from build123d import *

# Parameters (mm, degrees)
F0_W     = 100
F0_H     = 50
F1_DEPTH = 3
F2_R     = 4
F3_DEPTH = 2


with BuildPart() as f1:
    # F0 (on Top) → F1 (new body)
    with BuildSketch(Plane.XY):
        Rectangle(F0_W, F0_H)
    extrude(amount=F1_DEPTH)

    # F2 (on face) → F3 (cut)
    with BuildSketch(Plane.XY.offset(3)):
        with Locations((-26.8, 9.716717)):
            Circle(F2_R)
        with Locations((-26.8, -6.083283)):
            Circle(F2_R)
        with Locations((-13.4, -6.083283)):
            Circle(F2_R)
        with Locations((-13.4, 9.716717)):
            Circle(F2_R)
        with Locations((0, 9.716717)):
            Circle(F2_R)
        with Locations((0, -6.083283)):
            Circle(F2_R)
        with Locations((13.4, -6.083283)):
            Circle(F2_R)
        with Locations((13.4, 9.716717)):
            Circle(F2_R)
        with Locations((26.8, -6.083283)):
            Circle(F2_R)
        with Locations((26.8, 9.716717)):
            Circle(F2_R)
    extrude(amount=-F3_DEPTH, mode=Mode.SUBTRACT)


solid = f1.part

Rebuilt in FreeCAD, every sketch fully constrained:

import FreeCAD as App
import Part
import Sketcher

V = App.Vector

doc = App.newDocument("Part")
body = doc.addObject("PartDesign::Body", "Body")

sketch1 = body.newObject("Sketcher::SketchObject", "Sketch")
sketch1.AttachmentSupport = (doc.getObject("XY_Plane"), [""])
sketch1.MapMode = "FlatFace"
sketch1.addGeometry(Part.LineSegment(V(-50, 25, 0), V(-50, -25, 0)), False)
sketch1.addGeometry(Part.LineSegment(V(-50, -25, 0), V(50, -25, 0)), False)
sketch1.addGeometry(Part.LineSegment(V(50, -25, 0), V(50, 25, 0)), False)
sketch1.addGeometry(Part.LineSegment(V(50, 25, 0), V(-50, 25, 0)), False)
sketch1.addConstraint(Sketcher.Constraint("Coincident", 0, 2, 1, 1))
sketch1.addConstraint(Sketcher.Constraint("Coincident", 1, 2, 2, 1))
sketch1.addConstraint(Sketcher.Constraint("Coincident", 2, 2, 3, 1))
sketch1.addConstraint(Sketcher.Constraint("Coincident", 3, 2, 0, 1))
sketch1.addConstraint(Sketcher.Constraint("Vertical", 0))
sketch1.addConstraint(Sketcher.Constraint("Horizontal", 1))
sketch1.addConstraint(Sketcher.Constraint("Vertical", 2))
sketch1.addConstraint(Sketcher.Constraint("Horizontal", 3))
sketch1.addConstraint(Sketcher.Constraint("Symmetric", 0, 2, 2, 2, -1, 1))
sketch1.addConstraint(Sketcher.Constraint("DistanceX", 1, 1, 1, 2, 100.0))
sketch1.addConstraint(Sketcher.Constraint("DistanceY", 0, 2, 0, 1, 50.0))
pad1 = body.newObject("PartDesign::Pad", "Pad")
pad1.Profile = sketch1
pad1.Length = 3

sketch2 = body.newObject("Sketcher::SketchObject", "Sketch001")
sketch2.AttachmentSupport = (doc.getObject("XY_Plane"), [""])
sketch2.MapMode = "FlatFace"
sketch2.AttachmentOffset = App.Placement(V(0, 0, 3), App.Rotation())
sketch2.addGeometry(Part.Circle(V(-26.8, 9.7, 0), V(0, 0, 1), 4), False)
sketch2.addGeometry(Part.Circle(V(-26.8, -6.1, 0), V(0, 0, 1), 4), False)
sketch2.addGeometry(Part.Circle(V(-13.4, -6.1, 0), V(0, 0, 1), 4), False)
sketch2.addGeometry(Part.Circle(V(-13.4, 9.7, 0), V(0, 0, 1), 4), False)
sketch2.addGeometry(Part.Circle(V(0, 9.7, 0), V(0, 0, 1), 4), False)
sketch2.addGeometry(Part.Circle(V(0, -6.1, 0), V(0, 0, 1), 4), False)
sketch2.addGeometry(Part.Circle(V(13.4, -6.1, 0), V(0, 0, 1), 4), False)
sketch2.addGeometry(Part.Circle(V(13.4, 9.7, 0), V(0, 0, 1), 4), False)
sketch2.addGeometry(Part.Circle(V(26.8, -6.1, 0), V(0, 0, 1), 4), False)
sketch2.addGeometry(Part.Circle(V(26.8, 9.7, 0), V(0, 0, 1), 4), False)
sketch2.addConstraint(Sketcher.Constraint("Equal", 0, 1))
sketch2.addConstraint(Sketcher.Constraint("Equal", 1, 2))
sketch2.addConstraint(Sketcher.Constraint("Equal", 2, 3))
sketch2.addConstraint(Sketcher.Constraint("Equal", 3, 4))
sketch2.addConstraint(Sketcher.Constraint("Equal", 4, 5))
sketch2.addConstraint(Sketcher.Constraint("Equal", 5, 6))
sketch2.addConstraint(Sketcher.Constraint("Equal", 6, 7))
sketch2.addConstraint(Sketcher.Constraint("Equal", 7, 8))
sketch2.addConstraint(Sketcher.Constraint("Equal", 8, 9))
sketch2.addConstraint(Sketcher.Constraint("Symmetric", 2, 3, 6, 3, -2))
sketch2.addConstraint(Sketcher.Constraint("Symmetric", 3, 3, 7, 3, -2))
sketch2.addConstraint(Sketcher.Constraint("Symmetric", 1, 3, 8, 3, -2))
sketch2.addConstraint(Sketcher.Constraint("Symmetric", 0, 3, 9, 3, -2))
sketch2.addConstraint(Sketcher.Constraint("PointOnObject", 4, 3, -2))
sketch2.addConstraint(Sketcher.Constraint("PointOnObject", 5, 3, -2))
sketch2.addConstraint(Sketcher.Constraint("Horizontal", 1, 3, 2, 3))
sketch2.addConstraint(Sketcher.Constraint("Horizontal", 0, 3, 3, 3))
sketch2.addConstraint(Sketcher.Constraint("Horizontal", 3, 3, 4, 3))
sketch2.addConstraint(Sketcher.Constraint("Horizontal", 2, 3, 5, 3))
sketch2.addConstraint(Sketcher.Constraint("Vertical", 0, 3, 1, 3))
sketch2.addConstraint(Sketcher.Constraint("Vertical", 2, 3, 3, 3))
sketch2.addConstraint(Sketcher.Constraint("Diameter", 0, 8.0))
sketch2.addConstraint(Sketcher.Constraint("DistanceX", 0, 3, -1, 1, 26.8))
sketch2.addConstraint(Sketcher.Constraint("DistanceX", 2, 3, -1, 1, 13.4))
sketch2.addConstraint(Sketcher.Constraint("DistanceY", 1, 3, 0, 3, 15.8))
sketch2.addConstraint(Sketcher.Constraint("DistanceY", -1, 1, 0, 3, 9.716717))
pocket1 = body.newObject("PartDesign::Pocket", "Pocket")
pocket1.Profile = sketch2
pocket1.Length = 2

doc.recompute()
